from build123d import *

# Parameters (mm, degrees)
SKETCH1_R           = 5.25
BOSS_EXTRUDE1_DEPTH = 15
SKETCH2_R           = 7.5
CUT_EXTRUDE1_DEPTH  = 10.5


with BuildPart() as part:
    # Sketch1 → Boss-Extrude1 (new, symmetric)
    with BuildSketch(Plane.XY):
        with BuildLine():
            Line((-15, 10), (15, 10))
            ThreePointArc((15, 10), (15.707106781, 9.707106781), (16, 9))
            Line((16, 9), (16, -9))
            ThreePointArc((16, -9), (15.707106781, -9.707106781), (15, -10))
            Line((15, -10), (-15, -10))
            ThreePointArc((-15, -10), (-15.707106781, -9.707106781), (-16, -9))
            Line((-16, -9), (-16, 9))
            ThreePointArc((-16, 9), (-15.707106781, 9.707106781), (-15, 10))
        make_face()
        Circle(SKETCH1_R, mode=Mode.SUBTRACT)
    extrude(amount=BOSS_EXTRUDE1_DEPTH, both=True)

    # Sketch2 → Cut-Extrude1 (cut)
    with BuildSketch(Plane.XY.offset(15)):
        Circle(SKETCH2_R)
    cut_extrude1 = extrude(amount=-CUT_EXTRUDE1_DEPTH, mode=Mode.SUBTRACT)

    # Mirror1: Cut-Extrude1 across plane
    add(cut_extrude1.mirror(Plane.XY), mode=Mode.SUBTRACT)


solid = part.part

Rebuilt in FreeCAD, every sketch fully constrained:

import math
import FreeCAD as App
import Part
import Sketcher

doc = App.newDocument("Part")
body = doc.addObject("PartDesign::Body", "Body")

# Sketch on XY plane
sketch1 = body.newObject("Sketcher::SketchObject", "Sketch")
sketch1.AttachmentSupport = (doc.getObject("XY_Plane"), [""])
sketch1.MapMode = "FlatFace"
sketch1.addGeometry([
    Part.LineSegment(App.Vector(15, 10, 0), App.Vector(-15, 10, 0)),  # 0
    Part.ArcOfCircle(Part.Circle(App.Vector(-15, 9, 0), App.Vector(0, 0, 1), 1), math.radians(90), math.radians(180)),  # 1
    Part.LineSegment(App.Vector(-16, 9, 0), App.Vector(-16, -9, 0)),  # 2
    Part.ArcOfCircle(Part.Circle(App.Vector(-15, -9, 0), App.Vector(0, 0, 1), 1), math.radians(-180), math.radians(-90)),  # 3
    Part.LineSegment(App.Vector(-15, -10, 0), App.Vector(15, -10, 0)),  # 4
    Part.ArcOfCircle(Part.Circle(App.Vector(15, -9, 0), App.Vector(0, 0, 1), 1), math.radians(-90), math.radians(0)),  # 5
    Part.LineSegment(App.Vector(16, -9, 0), App.Vector(16, 9, 0)),  # 6
    Part.ArcOfCircle(Part.Circle(App.Vector(15, 9, 0), App.Vector(0, 0, 1), 1), math.radians(0), math.radians(90)),  # 7
    Part.Circle(App.Vector(0, 0, 0), App.Vector(0, 0, 1), 5.2),  # 8
], False)
sketch1.addConstraint([
    Sketcher.Constraint("Tangent", 0, 2, 1, 1),
    Sketcher.Constraint("Tangent", 1, 2, 2, 1),
    Sketcher.Constraint("Tangent", 2, 2, 3, 1),
    Sketcher.Constraint("Tangent", 3, 2, 4, 1),
    Sketcher.Constraint("Tangent", 4, 2, 5, 1),
    Sketcher.Constraint("Tangent", 5, 2, 6, 1),
    Sketcher.Constraint("Tangent", 6, 2, 7, 1),
    Sketcher.Constraint("Tangent", 7, 2, 0, 1),
    Sketcher.Constraint("Horizontal", 0),
    Sketcher.Constraint("Vertical", 2),
    Sketcher.Constraint("Horizontal", 4),
    Sketcher.Constraint("Vertical", 6),
    Sketcher.Constraint("Coincident", 8, 3, -1, 1),
    Sketcher.Constraint("Equal", 1, 3),
    Sketcher.Constraint("Equal", 3, 5),
    Sketcher.Constraint("Equal", 5, 7),
    Sketcher.Constraint("Symmetric", 1, 3, 5, 3, -1, 1),
    Sketcher.Constraint("Radius", 1, 1.0),
    Sketcher.Constraint("Diameter", 8, 10.5),
    Sketcher.Constraint("DistanceX", 0, 2, 0, 1, 30.0),
    Sketcher.Constraint("DistanceY", 2, 2, 2, 1, 18.0),
])
pad1 = body.newObject("PartDesign::Pad", "Pad")
pad1.Profile = sketch1
pad1.Length = 30
pad1.Midplane = True

# Sketch on XY plane
sketch2 = body.newObject("Sketcher::SketchObject", "Sketch001")
sketch2.AttachmentSupport = (doc.getObject("XY_Plane"), [""])
sketch2.MapMode = "FlatFace"
sketch2.AttachmentOffset = App.Placement(App.Vector(0, 0, 15), App.Rotation())
sketch2.addGeometry(Part.Circle(App.Vector(0, 0, 0), App.Vector(0, 0, 1), 8), False)
sketch2.addConstraint([
    Sketcher.Constraint("Coincident", 0, 3, -1, 1),
    Sketcher.Constraint("Diameter", 0, 15.0),
])
pocket1 = body.newObject("PartDesign::Pocket", "Pocket")
pocket1.Profile = sketch2
pocket1.Length = 10.5
doc.recompute()

mirrored = body.newObject("PartDesign::Mirrored", "Mirrored")
mirrored.Originals = [pocket1]
mirrored.MirrorPlane = (doc.getObject("XY_Plane"), [""])
body.Tip = mirrored

doc.recompute()
